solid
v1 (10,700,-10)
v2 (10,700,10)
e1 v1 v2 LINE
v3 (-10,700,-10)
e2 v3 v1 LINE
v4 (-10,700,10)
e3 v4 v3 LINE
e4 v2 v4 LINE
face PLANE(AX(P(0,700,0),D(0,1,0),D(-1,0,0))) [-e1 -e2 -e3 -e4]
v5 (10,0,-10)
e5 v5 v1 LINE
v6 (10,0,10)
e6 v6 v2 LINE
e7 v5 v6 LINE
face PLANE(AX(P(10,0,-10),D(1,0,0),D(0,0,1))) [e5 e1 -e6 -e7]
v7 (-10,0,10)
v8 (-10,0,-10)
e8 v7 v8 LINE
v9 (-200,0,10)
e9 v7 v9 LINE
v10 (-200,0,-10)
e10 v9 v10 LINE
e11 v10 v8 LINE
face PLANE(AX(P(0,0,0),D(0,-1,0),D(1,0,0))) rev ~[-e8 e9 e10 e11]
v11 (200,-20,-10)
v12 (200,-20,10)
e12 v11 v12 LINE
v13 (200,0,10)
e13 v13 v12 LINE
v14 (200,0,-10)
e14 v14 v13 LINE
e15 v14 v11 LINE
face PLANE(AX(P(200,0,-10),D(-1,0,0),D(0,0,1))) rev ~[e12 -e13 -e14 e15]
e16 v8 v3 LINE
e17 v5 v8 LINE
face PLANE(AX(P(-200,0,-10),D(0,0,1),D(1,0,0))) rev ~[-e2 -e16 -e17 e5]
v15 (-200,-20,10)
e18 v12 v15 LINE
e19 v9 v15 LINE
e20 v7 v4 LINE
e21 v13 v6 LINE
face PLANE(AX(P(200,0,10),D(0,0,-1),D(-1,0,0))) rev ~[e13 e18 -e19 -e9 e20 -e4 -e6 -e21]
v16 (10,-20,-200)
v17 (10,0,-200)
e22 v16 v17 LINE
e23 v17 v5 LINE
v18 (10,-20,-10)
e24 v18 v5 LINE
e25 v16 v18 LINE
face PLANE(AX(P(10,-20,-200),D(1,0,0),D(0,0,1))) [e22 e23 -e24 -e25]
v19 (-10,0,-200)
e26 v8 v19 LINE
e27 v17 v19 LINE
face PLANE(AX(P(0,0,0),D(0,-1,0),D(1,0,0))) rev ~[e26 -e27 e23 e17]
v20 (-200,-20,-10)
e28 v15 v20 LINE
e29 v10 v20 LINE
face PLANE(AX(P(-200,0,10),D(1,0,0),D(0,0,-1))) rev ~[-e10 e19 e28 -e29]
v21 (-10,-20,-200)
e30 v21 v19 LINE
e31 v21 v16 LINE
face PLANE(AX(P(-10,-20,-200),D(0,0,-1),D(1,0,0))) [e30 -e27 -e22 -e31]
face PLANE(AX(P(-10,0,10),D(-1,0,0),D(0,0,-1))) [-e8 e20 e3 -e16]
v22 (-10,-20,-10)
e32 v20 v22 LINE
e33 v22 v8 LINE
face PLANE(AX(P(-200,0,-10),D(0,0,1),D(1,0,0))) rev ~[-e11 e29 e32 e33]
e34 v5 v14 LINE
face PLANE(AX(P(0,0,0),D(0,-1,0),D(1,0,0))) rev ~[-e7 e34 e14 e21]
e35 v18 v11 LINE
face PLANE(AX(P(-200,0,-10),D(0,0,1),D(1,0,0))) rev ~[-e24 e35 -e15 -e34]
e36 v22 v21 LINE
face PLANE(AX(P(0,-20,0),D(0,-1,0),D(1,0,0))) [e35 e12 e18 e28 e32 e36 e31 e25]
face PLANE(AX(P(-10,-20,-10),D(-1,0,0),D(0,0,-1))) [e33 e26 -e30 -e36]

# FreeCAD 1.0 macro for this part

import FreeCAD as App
import Part
import Sketcher
Q = App.Units.Quantity


def add_polygon(sketch, points):
    """Adds a closed chain of lines whose ends are joined by coincident constraints."""
    first, n = sketch.GeometryCount, len(points)
    for a, b in zip(points, points[1:] + points[:1]):
        sketch.addGeometry(Part.LineSegment(App.Vector(*a, 0), App.Vector(*b, 0)), False)
    for i in range(n):
        sketch.addConstraint(Sketcher.Constraint("Coincident", first + i, 2, first + (i + 1) % n, 1))

doc = App.newDocument("Part")
body = doc.addObject("PartDesign::Body", "Body")

sketch1 = body.newObject("Sketcher::SketchObject", "Sketch")
sketch1.AttachmentSupport = (doc.getObject("XZ_Plane"), [""])
sketch1.MapMode = "FlatFace"
add_polygon(sketch1, [(10, -10), (-10, -10), (-10, 10), (10, 10)])
sketch1.addConstraint([
    Sketcher.Constraint("Horizontal", 0),
    Sketcher.Constraint("Vertical", 1),
    Sketcher.Constraint("Horizontal", 2),
    Sketcher.Constraint("Vertical", 3),
    Sketcher.Constraint("Symmetric", 0, 2, 2, 2, -1, 1),
    Sketcher.Constraint("Equal", 2, 1),
    Sketcher.Constraint("DistanceX", 0, 2, 0, 1, Q("20 mm")),
])
pad1 = body.newObject("PartDesign::Pad", "Pad")
pad1.Profile = sketch1
pad1.Length = 700
pad1.Reversed = True

sketch2 = body.newObject("Sketcher::SketchObject", "Sketch001")
sketch2.AttachmentSupport = (doc.getObject("XZ_Plane"), [""])
sketch2.MapMode = "FlatFace"
add_polygon(sketch2, [(-200, 10), (-200, -10), (200, -10), (200, 10)])
sketch2.addConstraint([
    Sketcher.Constraint("Vertical", 0),
    Sketcher.Constraint("Horizontal", 1),
    Sketcher.Constraint("Vertical", 2),
    Sketcher.Constraint("Horizontal", 3),
    Sketcher.Constraint("Symmetric", 0, 2, 2, 2, -1, 1),
    Sketcher.Constraint("DistanceX", 1, 1, 1, 2, Q("400 mm")),
    Sketcher.Constraint("DistanceY", 0, 2, 0, 1, Q("20 mm")),
])
pad2 = body.newObject("PartDesign::Pad", "Pad001")
pad2.Profile = sketch2
pad2.Length = 20

sketch3 = body.newObject("Sketcher::SketchObject", "Sketch002")
sketch3.AttachmentSupport = (doc.getObject("XZ_Plane"), [""])
sketch3.MapMode = "FlatFace"
sketch3.AttachmentOffset = App.Placement(App.Vector(0, 0, 20), App.Rotation())
add_polygon(sketch3, [(-10, -10), (-10, -200), (10, -200), (10, -10)])
sketch3.addConstraint([
    Sketcher.Constraint("Vertical", 0),
    Sketcher.Constraint("Horizontal", 1),
    Sketcher.Constraint("Vertical", 2),
    Sketcher.Constraint("Horizontal", 3),
    Sketcher.Constraint("DistanceX", 1, 1, 1, 2, Q("20 mm")),
    Sketcher.Constraint("DistanceY", 0, 2, -1, 1, Q("200 mm")),
    Sketcher.Constraint("DistanceY", 0, 2, 0, 1, Q("190 mm")),
    Sketcher.Constraint("DistanceX", 0, 2, -1, 1, Q("10 mm")),
])
pad3 = body.newObject("PartDesign::Pad", "Pad002")
pad3.Profile = sketch3
pad3.Length = 20
pad3.Reversed = True

doc.recompute()
